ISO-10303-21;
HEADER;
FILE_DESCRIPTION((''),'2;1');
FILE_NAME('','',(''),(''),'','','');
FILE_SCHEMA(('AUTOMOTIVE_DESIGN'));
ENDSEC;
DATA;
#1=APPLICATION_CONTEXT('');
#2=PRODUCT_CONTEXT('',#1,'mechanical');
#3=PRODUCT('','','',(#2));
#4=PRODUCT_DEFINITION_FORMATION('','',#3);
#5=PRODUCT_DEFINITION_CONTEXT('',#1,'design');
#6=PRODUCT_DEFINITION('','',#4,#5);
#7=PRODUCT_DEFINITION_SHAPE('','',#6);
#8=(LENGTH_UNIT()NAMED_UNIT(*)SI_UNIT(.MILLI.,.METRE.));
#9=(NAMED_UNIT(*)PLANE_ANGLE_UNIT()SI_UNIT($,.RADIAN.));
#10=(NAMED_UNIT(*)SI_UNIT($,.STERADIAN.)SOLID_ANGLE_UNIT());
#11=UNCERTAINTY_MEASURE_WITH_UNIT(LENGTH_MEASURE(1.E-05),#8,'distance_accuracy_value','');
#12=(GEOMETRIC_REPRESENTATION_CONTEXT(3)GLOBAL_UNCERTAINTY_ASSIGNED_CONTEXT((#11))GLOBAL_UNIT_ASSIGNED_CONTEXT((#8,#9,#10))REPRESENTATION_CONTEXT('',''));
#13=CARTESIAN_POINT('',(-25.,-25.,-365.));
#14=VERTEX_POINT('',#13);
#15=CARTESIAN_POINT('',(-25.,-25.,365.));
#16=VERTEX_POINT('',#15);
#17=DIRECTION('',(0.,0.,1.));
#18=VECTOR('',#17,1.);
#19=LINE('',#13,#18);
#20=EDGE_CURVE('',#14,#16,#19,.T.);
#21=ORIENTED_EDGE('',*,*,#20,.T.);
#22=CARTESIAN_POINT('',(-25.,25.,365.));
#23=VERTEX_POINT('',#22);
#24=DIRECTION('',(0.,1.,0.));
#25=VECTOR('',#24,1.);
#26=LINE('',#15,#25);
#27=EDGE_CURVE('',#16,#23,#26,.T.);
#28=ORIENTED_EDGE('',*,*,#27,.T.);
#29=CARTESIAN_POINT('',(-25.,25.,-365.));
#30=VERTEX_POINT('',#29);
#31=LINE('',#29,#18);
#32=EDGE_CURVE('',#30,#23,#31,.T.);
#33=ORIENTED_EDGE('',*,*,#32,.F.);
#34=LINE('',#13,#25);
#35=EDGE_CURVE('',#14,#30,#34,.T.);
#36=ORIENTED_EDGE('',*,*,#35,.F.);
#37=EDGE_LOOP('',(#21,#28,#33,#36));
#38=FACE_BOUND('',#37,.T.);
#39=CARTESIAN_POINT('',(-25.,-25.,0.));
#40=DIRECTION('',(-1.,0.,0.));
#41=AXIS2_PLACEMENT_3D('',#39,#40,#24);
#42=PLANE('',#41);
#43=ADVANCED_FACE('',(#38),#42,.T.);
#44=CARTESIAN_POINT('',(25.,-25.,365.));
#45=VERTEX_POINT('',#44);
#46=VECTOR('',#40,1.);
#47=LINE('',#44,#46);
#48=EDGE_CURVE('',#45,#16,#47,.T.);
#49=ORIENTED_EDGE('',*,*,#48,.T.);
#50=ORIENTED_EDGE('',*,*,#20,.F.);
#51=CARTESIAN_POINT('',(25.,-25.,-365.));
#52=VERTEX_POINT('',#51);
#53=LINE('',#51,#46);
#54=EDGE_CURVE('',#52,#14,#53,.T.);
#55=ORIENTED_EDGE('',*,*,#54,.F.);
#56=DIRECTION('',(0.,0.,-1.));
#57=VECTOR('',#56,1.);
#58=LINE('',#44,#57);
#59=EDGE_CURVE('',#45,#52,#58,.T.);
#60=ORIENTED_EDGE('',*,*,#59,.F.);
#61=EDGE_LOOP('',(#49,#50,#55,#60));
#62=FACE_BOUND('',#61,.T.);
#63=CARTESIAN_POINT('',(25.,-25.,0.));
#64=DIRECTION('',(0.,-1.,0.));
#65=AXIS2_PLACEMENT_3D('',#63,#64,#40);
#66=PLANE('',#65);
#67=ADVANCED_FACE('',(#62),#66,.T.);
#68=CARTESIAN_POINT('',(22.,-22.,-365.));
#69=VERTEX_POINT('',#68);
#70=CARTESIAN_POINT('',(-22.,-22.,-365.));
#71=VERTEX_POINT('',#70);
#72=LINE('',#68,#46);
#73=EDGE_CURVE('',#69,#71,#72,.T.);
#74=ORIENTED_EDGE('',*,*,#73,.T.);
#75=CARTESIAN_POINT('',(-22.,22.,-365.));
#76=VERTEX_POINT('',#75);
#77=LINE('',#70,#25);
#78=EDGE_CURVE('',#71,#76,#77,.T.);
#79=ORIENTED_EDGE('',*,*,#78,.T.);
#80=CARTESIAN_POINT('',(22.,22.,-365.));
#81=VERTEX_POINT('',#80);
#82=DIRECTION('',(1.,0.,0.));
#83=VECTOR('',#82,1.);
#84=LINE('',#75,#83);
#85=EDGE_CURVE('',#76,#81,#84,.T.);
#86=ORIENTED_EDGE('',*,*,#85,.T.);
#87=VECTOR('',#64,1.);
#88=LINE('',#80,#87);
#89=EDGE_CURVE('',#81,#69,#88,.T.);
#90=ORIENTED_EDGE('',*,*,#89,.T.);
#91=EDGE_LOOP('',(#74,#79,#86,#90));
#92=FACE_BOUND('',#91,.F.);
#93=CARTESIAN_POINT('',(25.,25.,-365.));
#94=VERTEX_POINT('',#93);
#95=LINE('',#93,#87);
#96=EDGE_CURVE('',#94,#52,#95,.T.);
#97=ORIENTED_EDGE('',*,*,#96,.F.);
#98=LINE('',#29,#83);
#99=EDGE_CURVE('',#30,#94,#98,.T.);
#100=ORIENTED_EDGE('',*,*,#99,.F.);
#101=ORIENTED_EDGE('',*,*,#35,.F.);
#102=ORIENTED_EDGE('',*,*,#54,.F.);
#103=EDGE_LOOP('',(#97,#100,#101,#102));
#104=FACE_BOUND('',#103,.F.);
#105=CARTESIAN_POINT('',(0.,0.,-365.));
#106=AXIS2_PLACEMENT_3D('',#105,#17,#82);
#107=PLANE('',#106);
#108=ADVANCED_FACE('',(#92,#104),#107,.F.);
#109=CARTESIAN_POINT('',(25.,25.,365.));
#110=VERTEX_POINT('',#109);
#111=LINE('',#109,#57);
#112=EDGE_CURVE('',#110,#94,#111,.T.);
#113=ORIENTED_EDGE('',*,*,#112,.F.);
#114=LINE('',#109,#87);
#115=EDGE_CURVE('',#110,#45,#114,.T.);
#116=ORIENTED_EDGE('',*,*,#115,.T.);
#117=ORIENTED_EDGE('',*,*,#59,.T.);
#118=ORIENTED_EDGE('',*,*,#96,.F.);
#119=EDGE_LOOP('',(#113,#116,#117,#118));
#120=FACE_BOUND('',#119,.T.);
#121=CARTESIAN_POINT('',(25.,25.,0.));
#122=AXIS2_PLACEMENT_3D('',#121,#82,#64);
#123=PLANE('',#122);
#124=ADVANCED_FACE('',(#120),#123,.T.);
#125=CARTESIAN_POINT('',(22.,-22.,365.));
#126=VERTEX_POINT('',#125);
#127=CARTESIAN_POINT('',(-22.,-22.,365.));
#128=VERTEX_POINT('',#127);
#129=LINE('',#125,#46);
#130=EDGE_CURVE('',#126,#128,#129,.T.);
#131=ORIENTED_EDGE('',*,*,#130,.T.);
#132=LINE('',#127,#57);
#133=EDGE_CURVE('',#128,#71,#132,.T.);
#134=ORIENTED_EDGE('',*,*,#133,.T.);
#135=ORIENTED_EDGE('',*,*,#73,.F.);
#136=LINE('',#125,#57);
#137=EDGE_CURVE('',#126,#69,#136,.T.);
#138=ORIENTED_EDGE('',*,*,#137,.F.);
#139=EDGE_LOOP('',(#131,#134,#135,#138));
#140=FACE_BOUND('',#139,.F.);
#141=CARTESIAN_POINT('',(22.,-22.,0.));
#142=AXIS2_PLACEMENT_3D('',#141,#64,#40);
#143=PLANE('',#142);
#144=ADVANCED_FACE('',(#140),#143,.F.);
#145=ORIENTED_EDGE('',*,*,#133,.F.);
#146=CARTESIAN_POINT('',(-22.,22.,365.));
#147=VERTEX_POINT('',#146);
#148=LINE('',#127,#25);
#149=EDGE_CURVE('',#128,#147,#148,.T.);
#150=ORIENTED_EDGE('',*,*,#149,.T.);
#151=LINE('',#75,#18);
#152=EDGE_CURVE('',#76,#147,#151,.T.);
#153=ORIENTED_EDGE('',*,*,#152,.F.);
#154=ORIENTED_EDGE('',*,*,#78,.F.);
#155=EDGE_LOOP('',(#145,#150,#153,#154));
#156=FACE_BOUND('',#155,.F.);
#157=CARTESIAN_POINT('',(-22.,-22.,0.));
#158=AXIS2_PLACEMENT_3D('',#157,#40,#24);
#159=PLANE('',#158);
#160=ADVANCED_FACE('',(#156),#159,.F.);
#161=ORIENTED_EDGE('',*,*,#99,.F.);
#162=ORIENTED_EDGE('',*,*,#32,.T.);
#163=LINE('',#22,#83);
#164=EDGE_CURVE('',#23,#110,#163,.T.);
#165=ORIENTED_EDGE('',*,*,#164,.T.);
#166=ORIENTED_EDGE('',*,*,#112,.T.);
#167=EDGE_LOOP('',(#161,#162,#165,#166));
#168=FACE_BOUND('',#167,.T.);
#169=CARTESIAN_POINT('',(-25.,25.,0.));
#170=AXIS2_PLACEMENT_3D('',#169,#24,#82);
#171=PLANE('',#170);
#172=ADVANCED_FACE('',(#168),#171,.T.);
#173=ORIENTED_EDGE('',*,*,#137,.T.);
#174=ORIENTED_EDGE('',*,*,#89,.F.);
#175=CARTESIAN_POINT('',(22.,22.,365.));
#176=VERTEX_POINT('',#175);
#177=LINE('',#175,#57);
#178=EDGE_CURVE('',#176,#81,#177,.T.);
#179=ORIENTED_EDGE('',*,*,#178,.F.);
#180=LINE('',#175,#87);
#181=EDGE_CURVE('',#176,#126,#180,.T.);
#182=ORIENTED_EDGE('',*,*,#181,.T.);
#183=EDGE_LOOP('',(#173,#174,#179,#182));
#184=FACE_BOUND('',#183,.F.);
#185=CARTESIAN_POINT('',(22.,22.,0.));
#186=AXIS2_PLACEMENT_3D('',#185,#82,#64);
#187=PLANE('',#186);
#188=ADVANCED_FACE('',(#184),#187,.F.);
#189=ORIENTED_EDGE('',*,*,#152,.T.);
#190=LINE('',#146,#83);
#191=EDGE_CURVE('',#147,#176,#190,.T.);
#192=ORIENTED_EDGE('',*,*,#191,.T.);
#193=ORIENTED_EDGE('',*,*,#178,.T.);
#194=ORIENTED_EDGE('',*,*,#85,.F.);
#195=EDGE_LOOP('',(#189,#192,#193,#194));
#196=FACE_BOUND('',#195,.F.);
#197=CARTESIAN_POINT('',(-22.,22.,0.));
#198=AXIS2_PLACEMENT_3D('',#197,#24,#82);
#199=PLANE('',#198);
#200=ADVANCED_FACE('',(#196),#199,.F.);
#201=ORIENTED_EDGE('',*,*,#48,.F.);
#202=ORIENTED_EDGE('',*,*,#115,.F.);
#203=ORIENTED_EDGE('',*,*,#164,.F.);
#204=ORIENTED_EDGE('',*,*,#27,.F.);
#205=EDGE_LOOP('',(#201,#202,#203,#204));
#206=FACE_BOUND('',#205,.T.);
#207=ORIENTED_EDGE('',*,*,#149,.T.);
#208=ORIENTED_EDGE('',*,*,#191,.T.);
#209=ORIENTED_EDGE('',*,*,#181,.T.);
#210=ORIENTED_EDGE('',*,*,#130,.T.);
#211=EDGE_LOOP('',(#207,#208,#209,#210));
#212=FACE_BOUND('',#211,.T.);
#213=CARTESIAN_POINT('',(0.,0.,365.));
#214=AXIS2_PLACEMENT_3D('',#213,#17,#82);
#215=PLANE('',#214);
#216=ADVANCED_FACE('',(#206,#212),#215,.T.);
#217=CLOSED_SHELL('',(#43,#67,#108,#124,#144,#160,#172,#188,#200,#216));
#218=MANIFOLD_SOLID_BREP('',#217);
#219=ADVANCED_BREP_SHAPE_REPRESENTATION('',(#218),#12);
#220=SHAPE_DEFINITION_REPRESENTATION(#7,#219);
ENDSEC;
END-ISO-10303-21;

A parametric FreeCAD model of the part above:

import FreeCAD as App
import Part
import Sketcher

doc = App.newDocument("Part")
body = doc.addObject("PartDesign::Body", "Body")

sketch1 = doc.addObject("Sketcher::SketchObject", "Sketch")
body.addObject(sketch1)
sketch1.AttachmentSupport = (doc.XY_Plane, [""])
sketch1.MapMode = "FlatFace"
sketch1.addGeometry([
    Part.LineSegment(App.Vector(25, 25, 0), App.Vector(-25, 25, 0)),
    Part.LineSegment(App.Vector(-25, 25, 0), App.Vector(-25, -25, 0)),
    Part.LineSegment(App.Vector(-25, -25, 0), App.Vector(25, -25, 0)),
    Part.LineSegment(App.Vector(25, -25, 0), App.Vector(25, 25, 0)),
    Part.LineSegment(App.Vector(-22, -22, 0), App.Vector(-22, 22, 0)),
    Part.LineSegment(App.Vector(-22, 22, 0), App.Vector(22, 22, 0)),
    Part.LineSegment(App.Vector(22, 22, 0), App.Vector(22, -22, 0)),
    Part.LineSegment(App.Vector(22, -22, 0), App.Vector(-22, -22, 0)),
], False)
sketch1.addConstraint([
    Sketcher.Constraint("Coincident", 0, 2, 1, 1),
    Sketcher.Constraint("Coincident", 1, 2, 2, 1),
    Sketcher.Constraint("Coincident", 2, 2, 3, 1),
    Sketcher.Constraint("Coincident", 3, 2, 0, 1),
    Sketcher.Constraint("Coincident", 4, 2, 5, 1),
    Sketcher.Constraint("Coincident", 5, 2, 6, 1),
    Sketcher.Constraint("Coincident", 6, 2, 7, 1),
    Sketcher.Constraint("Coincident", 7, 2, 4, 1),
    Sketcher.Constraint("Horizontal", 0),
    Sketcher.Constraint("Vertical", 1),
    Sketcher.Constraint("Horizontal", 2),
    Sketcher.Constraint("Vertical", 3),
    Sketcher.Constraint("Vertical", 4),
    Sketcher.Constraint("Horizontal", 5),
    Sketcher.Constraint("Vertical", 6),
    Sketcher.Constraint("Horizontal", 7),
    Sketcher.Constraint("Symmetric", 0, 2, 2, 2, -1, 1),
    Sketcher.Constraint("Symmetric", 4, 2, 6, 2, -1, 1),
    Sketcher.Constraint("Equal", 2, 1),
    Sketcher.Constraint("Equal", 7, 4),
    Sketcher.Constraint("DistanceX", 0, 2, 0, 1, 50.0),
    Sketcher.Constraint("DistanceX", 0, 2, 4, 2, 3.0),
])
pad1 = doc.addObject("PartDesign::Pad", "Pad")
body.addObject(pad1)
pad1.Profile = sketch1
pad1.Length = 730
pad1.Midplane = True

doc.recompute()
